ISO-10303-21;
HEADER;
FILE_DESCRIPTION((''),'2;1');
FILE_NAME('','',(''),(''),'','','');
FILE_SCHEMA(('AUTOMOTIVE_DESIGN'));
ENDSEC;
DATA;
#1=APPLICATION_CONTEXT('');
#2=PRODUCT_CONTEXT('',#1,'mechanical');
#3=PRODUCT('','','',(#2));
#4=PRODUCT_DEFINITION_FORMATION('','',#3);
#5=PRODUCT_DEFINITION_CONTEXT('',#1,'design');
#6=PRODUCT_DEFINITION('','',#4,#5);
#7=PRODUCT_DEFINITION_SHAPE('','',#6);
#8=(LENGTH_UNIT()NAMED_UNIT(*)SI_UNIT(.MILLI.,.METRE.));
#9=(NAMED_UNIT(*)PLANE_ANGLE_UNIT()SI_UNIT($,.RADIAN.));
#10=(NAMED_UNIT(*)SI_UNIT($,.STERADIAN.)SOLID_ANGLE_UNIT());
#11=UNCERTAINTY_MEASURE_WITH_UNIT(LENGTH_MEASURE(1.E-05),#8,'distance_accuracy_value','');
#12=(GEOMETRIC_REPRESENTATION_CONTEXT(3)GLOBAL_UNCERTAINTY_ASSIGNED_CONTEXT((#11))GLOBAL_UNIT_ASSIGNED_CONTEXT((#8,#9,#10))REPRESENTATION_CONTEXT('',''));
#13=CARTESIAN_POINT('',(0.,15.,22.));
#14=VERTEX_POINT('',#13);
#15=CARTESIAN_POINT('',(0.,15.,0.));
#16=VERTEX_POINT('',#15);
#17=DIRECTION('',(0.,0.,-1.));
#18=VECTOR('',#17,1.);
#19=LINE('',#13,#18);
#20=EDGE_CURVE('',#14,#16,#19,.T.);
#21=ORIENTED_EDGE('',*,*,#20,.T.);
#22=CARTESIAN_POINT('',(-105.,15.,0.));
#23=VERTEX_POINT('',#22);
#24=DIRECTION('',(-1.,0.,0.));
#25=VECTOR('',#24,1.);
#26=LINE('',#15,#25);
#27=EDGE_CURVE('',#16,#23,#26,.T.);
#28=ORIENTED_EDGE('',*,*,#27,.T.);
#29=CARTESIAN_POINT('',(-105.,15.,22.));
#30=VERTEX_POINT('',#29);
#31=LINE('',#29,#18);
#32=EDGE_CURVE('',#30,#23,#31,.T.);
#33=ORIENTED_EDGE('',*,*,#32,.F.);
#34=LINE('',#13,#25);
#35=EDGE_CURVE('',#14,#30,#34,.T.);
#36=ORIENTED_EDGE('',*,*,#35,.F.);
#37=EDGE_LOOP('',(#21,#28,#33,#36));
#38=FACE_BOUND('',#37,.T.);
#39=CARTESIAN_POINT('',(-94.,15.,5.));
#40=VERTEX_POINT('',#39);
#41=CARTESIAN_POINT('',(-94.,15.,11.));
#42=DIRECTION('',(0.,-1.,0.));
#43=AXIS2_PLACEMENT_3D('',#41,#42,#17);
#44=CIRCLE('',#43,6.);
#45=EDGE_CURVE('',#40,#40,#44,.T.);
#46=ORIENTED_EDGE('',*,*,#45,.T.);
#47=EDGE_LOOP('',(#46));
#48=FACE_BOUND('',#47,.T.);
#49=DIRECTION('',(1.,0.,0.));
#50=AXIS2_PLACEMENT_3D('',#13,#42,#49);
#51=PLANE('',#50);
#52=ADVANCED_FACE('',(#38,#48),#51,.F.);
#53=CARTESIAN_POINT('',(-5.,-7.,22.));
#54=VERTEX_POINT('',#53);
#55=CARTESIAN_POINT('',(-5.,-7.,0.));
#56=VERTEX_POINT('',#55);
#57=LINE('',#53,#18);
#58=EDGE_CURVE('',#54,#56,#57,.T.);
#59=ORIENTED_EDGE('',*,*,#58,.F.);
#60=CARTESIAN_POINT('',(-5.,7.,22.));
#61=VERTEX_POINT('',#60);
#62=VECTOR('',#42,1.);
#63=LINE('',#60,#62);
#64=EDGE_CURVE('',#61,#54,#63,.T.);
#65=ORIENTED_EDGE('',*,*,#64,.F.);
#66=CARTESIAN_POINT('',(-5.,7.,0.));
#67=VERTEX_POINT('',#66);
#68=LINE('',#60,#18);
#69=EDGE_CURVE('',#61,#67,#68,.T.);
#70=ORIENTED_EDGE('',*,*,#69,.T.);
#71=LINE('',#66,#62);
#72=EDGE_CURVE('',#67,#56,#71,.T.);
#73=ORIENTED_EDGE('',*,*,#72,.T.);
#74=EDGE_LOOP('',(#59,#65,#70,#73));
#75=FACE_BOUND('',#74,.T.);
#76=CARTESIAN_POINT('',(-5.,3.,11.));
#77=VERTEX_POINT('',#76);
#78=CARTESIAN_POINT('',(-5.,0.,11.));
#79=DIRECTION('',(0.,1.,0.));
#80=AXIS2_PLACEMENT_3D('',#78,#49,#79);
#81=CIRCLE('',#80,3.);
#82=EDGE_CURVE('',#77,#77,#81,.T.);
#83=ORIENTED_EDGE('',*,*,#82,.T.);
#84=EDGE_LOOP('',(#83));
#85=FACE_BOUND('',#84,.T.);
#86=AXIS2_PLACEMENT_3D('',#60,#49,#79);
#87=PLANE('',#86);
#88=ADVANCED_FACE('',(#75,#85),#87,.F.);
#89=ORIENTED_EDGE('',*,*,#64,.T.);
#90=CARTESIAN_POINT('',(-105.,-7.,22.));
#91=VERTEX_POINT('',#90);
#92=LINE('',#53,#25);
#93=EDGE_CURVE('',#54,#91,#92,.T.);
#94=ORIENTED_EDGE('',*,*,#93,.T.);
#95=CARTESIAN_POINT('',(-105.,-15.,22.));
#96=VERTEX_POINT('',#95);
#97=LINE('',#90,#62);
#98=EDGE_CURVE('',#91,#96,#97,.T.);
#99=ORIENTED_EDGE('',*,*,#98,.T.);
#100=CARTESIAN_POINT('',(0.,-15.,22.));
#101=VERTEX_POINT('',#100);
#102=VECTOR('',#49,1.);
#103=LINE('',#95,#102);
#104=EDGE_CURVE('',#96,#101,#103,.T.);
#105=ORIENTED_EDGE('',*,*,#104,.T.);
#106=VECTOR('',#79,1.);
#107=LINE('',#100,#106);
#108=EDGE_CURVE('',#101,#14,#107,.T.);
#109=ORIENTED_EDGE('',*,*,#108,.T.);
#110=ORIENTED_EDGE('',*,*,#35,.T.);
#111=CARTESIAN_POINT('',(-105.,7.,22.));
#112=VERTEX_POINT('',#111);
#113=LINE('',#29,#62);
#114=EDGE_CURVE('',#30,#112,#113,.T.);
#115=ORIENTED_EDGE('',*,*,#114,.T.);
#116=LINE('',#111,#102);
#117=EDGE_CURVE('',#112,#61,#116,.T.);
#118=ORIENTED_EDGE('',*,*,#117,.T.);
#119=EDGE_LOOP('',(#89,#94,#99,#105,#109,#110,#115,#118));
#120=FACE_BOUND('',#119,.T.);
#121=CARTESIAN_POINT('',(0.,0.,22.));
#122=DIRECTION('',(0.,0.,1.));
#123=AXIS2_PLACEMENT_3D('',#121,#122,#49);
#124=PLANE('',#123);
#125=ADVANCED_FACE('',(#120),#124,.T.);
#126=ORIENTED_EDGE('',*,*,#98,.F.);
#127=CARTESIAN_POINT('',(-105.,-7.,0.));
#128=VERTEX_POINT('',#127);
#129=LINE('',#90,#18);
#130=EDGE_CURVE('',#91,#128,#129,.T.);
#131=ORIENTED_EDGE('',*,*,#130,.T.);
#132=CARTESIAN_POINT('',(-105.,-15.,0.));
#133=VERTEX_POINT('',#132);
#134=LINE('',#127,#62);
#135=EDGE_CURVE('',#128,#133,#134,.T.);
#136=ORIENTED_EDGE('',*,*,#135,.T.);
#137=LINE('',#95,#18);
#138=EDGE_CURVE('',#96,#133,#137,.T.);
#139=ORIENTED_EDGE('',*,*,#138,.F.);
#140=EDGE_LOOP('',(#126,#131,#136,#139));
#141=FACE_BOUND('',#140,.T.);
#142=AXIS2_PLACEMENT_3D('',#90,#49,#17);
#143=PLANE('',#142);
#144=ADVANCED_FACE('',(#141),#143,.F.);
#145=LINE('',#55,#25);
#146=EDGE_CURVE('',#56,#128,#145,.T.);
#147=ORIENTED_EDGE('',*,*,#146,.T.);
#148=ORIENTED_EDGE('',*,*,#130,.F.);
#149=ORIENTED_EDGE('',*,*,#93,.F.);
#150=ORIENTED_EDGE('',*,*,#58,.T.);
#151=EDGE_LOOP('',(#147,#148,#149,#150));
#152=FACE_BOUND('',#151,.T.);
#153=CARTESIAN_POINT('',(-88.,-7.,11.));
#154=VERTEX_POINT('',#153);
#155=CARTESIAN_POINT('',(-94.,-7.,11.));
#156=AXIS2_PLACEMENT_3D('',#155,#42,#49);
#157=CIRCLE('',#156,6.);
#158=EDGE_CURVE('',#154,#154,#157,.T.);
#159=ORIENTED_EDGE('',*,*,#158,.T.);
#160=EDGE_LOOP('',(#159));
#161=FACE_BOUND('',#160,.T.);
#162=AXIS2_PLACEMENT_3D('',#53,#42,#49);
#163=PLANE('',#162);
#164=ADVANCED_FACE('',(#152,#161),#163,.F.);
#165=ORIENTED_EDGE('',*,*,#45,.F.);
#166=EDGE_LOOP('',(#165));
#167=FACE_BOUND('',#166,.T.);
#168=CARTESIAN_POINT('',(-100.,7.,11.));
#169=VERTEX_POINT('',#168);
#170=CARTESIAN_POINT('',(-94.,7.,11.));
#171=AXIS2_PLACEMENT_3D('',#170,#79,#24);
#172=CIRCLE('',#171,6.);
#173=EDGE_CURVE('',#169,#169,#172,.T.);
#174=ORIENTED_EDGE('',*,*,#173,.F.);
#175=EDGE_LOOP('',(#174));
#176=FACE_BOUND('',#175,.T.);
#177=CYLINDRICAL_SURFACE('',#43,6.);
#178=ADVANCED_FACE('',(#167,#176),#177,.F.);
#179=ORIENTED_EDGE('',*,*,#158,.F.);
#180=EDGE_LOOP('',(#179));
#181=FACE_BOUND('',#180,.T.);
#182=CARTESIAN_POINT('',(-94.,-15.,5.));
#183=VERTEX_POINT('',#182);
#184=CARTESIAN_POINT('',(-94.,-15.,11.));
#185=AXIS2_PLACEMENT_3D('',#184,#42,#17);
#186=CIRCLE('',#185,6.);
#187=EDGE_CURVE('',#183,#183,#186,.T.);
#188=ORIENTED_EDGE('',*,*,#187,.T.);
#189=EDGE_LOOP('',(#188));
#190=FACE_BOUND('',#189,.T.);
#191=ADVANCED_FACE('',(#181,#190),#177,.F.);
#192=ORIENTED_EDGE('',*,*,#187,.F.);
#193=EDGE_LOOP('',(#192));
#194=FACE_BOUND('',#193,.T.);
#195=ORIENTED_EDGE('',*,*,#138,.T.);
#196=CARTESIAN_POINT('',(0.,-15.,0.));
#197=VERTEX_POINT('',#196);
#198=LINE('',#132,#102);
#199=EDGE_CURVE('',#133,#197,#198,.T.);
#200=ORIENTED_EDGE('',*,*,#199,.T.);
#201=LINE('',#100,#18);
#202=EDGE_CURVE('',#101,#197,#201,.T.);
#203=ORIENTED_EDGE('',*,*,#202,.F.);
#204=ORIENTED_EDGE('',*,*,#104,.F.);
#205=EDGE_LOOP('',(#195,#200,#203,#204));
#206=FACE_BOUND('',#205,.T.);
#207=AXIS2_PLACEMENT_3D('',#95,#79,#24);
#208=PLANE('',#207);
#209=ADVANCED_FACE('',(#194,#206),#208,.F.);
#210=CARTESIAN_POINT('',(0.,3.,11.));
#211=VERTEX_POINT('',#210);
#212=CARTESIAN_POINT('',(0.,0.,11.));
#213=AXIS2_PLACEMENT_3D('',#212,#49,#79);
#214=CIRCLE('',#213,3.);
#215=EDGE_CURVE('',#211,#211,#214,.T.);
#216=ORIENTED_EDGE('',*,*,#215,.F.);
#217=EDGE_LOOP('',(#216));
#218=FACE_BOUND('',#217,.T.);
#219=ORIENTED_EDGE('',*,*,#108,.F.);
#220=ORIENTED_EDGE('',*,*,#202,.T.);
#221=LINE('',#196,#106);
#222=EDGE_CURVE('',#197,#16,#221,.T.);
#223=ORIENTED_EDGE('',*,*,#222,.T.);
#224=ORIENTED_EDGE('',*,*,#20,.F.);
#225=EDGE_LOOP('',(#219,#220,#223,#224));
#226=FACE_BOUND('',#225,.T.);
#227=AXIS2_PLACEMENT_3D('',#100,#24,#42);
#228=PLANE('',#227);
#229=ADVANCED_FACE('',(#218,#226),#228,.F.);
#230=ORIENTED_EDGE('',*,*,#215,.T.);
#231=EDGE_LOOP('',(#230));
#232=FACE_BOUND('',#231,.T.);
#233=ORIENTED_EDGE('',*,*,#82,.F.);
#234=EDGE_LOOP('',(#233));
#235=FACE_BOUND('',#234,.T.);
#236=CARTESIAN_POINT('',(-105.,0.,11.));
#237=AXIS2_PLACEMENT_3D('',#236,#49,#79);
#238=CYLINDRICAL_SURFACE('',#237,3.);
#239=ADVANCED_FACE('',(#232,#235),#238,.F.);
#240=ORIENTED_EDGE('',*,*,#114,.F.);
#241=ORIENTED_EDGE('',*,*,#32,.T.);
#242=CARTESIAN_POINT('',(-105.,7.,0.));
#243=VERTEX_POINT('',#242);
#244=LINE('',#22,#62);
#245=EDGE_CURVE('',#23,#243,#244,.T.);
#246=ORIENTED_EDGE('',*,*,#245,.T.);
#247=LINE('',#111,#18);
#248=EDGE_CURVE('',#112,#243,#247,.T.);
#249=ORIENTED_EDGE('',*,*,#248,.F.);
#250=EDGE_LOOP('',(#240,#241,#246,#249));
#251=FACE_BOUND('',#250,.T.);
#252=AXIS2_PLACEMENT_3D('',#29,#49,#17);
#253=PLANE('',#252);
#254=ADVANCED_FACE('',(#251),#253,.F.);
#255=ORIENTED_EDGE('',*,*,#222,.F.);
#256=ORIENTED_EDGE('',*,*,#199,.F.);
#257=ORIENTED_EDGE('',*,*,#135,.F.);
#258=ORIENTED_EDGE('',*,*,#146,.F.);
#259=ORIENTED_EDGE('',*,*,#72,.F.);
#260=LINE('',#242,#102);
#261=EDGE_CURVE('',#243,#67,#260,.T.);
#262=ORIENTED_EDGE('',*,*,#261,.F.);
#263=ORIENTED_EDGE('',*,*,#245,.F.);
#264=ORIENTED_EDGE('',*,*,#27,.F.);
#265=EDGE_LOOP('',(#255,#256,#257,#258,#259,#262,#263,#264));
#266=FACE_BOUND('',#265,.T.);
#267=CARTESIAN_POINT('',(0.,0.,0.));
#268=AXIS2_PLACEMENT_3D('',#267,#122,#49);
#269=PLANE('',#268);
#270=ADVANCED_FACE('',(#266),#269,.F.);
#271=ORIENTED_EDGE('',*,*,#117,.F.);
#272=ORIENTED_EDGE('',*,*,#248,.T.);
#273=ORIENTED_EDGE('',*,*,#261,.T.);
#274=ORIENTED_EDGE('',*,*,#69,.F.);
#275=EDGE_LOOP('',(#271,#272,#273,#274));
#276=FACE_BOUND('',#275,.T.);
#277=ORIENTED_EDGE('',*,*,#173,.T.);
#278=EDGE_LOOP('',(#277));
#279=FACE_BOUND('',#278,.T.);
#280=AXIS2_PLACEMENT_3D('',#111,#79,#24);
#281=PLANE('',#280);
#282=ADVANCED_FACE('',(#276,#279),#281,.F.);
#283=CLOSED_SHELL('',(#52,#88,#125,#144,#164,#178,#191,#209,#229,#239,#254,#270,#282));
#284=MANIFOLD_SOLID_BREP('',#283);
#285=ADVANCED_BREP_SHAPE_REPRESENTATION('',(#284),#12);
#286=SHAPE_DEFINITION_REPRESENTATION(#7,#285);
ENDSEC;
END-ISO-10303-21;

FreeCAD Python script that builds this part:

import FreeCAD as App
import Part
import Sketcher
Q = App.Units.Quantity

doc = App.newDocument("Part")
body = doc.addObject("PartDesign::Body", "Body")

sketch1 = body.newObject("Sketcher::SketchObject", "Sketch")
sketch1.AttachmentSupport = (doc.getObject("XY_Plane"), [""])
sketch1.MapMode = "FlatFace"
sketch1.addGeometry(Part.LineSegment(App.Vector(-105, 15, 0), App.Vector(-105, 7, 0)), False)
sketch1.addGeometry(Part.LineSegment(App.Vector(-105, 7, 0), App.Vector(-5, 7, 0)), False)
sketch1.addGeometry(Part.LineSegment(App.Vector(-5, 7, 0), App.Vector(-5, -7, 0)), False)
sketch1.addGeometry(Part.LineSegment(App.Vector(-5, -7, 0), App.Vector(-105, -7, 0)), False)
sketch1.addGeometry(Part.LineSegment(App.Vector(-105, -7, 0), App.Vector(-105, -15, 0)), False)
sketch1.addGeometry(Part.LineSegment(App.Vector(-105, -15, 0), App.Vector(0, -15, 0)), False)
sketch1.addGeometry(Part.LineSegment(App.Vector(0, -15, 0), App.Vector(0, 15, 0)), False)
sketch1.addGeometry(Part.LineSegment(App.Vector(0, 15, 0), App.Vector(-105, 15, 0)), False)
sketch1.addConstraint(Sketcher.Constraint("Coincident", 0, 2, 1, 1))
sketch1.addConstraint(Sketcher.Constraint("Coincident", 1, 2, 2, 1))
sketch1.addConstraint(Sketcher.Constraint("Coincident", 2, 2, 3, 1))
sketch1.addConstraint(Sketcher.Constraint("Coincident", 3, 2, 4, 1))
sketch1.addConstraint(Sketcher.Constraint("Coincident", 4, 2, 5, 1))
sketch1.addConstraint(Sketcher.Constraint("Coincident", 5, 2, 6, 1))
sketch1.addConstraint(Sketcher.Constraint("Coincident", 6, 2, 7, 1))
sketch1.addConstraint(Sketcher.Constraint("Coincident", 7, 2, 0, 1))
sketch1.addConstraint(Sketcher.Constraint("Vertical", 0))
sketch1.addConstraint(Sketcher.Constraint("Horizontal", 1))
sketch1.addConstraint(Sketcher.Constraint("Vertical", 2))
sketch1.addConstraint(Sketcher.Constraint("Horizontal", 3))
sketch1.addConstraint(Sketcher.Constraint("Vertical", 4))
sketch1.addConstraint(Sketcher.Constraint("Horizontal", 5))
sketch1.addConstraint(Sketcher.Constraint("Vertical", 6))
sketch1.addConstraint(Sketcher.Constraint("Horizontal", 7))
sketch1.addConstraint(Sketcher.Constraint("Symmetric", 5, 2, 6, 2, -1, 1))
sketch1.addConstraint(Sketcher.Constraint("Symmetric", 0, 2, 3, 2, -1))
sketch1.addConstraint(Sketcher.Constraint("DistanceX", 1, 1, 1, 2, Q("100 mm")))
sketch1.addConstraint(Sketcher.Constraint("DistanceX", 5, 1, 5, 2, Q("105 mm")))
sketch1.addConstraint(Sketcher.Constraint("DistanceY", 0, 2, 0, 1, Q("8 mm")))
sketch1.addConstraint(Sketcher.Constraint("DistanceY", 2, 2, 2, 1, Q("14 mm")))
pad1 = body.newObject("PartDesign::Pad", "Pad")
pad1.Profile = sketch1
pad1.Length = 22

sketch2 = body.newObject("Sketcher::SketchObject", "Sketch001")
sketch2.AttachmentSupport = (doc.getObject("XZ_Plane"), [""])
sketch2.MapMode = "FlatFace"
sketch2.AttachmentOffset = App.Placement(App.Vector(0, 0, 15), App.Rotation())
sketch2.addGeometry(Part.Circle(App.Vector(-94, 11, 0), App.Vector(0, 0, 1), 6), False)
sketch2.addConstraint(Sketcher.Constraint("Diameter", 0, Q("12 mm")))
sketch2.addConstraint(Sketcher.Constraint("DistanceX", 0, 3, -1, 1, Q("94 mm")))
sketch2.addConstraint(Sketcher.Constraint("DistanceY", -1, 1, 0, 3, Q("11 mm")))
pocket1 = body.newObject("PartDesign::Pocket", "Pocket")
pocket1.Profile = sketch2
pocket1.Type = "ThroughAll"

sketch3 = body.newObject("Sketcher::SketchObject", "Sketch002")
sketch3.AttachmentSupport = (doc.getObject("YZ_Plane"), [""])
sketch3.MapMode = "FlatFace"
sketch3.addGeometry(Part.Circle(App.Vector(0, 11, 0), App.Vector(0, 0, 1), 3), False)
sketch3.addConstraint(Sketcher.Constraint("PointOnObject", 0, 3, -2))
sketch3.addConstraint(Sketcher.Constraint("Diameter", 0, Q("6 mm")))
sketch3.addConstraint(Sketcher.Constraint("DistanceY", -1, 1, 0, 3, Q("11 mm")))
pocket2 = body.newObject("PartDesign::Pocket", "Pocket001")
pocket2.Profile = sketch3
pocket2.Type = "ThroughAll"

doc.recompute()
